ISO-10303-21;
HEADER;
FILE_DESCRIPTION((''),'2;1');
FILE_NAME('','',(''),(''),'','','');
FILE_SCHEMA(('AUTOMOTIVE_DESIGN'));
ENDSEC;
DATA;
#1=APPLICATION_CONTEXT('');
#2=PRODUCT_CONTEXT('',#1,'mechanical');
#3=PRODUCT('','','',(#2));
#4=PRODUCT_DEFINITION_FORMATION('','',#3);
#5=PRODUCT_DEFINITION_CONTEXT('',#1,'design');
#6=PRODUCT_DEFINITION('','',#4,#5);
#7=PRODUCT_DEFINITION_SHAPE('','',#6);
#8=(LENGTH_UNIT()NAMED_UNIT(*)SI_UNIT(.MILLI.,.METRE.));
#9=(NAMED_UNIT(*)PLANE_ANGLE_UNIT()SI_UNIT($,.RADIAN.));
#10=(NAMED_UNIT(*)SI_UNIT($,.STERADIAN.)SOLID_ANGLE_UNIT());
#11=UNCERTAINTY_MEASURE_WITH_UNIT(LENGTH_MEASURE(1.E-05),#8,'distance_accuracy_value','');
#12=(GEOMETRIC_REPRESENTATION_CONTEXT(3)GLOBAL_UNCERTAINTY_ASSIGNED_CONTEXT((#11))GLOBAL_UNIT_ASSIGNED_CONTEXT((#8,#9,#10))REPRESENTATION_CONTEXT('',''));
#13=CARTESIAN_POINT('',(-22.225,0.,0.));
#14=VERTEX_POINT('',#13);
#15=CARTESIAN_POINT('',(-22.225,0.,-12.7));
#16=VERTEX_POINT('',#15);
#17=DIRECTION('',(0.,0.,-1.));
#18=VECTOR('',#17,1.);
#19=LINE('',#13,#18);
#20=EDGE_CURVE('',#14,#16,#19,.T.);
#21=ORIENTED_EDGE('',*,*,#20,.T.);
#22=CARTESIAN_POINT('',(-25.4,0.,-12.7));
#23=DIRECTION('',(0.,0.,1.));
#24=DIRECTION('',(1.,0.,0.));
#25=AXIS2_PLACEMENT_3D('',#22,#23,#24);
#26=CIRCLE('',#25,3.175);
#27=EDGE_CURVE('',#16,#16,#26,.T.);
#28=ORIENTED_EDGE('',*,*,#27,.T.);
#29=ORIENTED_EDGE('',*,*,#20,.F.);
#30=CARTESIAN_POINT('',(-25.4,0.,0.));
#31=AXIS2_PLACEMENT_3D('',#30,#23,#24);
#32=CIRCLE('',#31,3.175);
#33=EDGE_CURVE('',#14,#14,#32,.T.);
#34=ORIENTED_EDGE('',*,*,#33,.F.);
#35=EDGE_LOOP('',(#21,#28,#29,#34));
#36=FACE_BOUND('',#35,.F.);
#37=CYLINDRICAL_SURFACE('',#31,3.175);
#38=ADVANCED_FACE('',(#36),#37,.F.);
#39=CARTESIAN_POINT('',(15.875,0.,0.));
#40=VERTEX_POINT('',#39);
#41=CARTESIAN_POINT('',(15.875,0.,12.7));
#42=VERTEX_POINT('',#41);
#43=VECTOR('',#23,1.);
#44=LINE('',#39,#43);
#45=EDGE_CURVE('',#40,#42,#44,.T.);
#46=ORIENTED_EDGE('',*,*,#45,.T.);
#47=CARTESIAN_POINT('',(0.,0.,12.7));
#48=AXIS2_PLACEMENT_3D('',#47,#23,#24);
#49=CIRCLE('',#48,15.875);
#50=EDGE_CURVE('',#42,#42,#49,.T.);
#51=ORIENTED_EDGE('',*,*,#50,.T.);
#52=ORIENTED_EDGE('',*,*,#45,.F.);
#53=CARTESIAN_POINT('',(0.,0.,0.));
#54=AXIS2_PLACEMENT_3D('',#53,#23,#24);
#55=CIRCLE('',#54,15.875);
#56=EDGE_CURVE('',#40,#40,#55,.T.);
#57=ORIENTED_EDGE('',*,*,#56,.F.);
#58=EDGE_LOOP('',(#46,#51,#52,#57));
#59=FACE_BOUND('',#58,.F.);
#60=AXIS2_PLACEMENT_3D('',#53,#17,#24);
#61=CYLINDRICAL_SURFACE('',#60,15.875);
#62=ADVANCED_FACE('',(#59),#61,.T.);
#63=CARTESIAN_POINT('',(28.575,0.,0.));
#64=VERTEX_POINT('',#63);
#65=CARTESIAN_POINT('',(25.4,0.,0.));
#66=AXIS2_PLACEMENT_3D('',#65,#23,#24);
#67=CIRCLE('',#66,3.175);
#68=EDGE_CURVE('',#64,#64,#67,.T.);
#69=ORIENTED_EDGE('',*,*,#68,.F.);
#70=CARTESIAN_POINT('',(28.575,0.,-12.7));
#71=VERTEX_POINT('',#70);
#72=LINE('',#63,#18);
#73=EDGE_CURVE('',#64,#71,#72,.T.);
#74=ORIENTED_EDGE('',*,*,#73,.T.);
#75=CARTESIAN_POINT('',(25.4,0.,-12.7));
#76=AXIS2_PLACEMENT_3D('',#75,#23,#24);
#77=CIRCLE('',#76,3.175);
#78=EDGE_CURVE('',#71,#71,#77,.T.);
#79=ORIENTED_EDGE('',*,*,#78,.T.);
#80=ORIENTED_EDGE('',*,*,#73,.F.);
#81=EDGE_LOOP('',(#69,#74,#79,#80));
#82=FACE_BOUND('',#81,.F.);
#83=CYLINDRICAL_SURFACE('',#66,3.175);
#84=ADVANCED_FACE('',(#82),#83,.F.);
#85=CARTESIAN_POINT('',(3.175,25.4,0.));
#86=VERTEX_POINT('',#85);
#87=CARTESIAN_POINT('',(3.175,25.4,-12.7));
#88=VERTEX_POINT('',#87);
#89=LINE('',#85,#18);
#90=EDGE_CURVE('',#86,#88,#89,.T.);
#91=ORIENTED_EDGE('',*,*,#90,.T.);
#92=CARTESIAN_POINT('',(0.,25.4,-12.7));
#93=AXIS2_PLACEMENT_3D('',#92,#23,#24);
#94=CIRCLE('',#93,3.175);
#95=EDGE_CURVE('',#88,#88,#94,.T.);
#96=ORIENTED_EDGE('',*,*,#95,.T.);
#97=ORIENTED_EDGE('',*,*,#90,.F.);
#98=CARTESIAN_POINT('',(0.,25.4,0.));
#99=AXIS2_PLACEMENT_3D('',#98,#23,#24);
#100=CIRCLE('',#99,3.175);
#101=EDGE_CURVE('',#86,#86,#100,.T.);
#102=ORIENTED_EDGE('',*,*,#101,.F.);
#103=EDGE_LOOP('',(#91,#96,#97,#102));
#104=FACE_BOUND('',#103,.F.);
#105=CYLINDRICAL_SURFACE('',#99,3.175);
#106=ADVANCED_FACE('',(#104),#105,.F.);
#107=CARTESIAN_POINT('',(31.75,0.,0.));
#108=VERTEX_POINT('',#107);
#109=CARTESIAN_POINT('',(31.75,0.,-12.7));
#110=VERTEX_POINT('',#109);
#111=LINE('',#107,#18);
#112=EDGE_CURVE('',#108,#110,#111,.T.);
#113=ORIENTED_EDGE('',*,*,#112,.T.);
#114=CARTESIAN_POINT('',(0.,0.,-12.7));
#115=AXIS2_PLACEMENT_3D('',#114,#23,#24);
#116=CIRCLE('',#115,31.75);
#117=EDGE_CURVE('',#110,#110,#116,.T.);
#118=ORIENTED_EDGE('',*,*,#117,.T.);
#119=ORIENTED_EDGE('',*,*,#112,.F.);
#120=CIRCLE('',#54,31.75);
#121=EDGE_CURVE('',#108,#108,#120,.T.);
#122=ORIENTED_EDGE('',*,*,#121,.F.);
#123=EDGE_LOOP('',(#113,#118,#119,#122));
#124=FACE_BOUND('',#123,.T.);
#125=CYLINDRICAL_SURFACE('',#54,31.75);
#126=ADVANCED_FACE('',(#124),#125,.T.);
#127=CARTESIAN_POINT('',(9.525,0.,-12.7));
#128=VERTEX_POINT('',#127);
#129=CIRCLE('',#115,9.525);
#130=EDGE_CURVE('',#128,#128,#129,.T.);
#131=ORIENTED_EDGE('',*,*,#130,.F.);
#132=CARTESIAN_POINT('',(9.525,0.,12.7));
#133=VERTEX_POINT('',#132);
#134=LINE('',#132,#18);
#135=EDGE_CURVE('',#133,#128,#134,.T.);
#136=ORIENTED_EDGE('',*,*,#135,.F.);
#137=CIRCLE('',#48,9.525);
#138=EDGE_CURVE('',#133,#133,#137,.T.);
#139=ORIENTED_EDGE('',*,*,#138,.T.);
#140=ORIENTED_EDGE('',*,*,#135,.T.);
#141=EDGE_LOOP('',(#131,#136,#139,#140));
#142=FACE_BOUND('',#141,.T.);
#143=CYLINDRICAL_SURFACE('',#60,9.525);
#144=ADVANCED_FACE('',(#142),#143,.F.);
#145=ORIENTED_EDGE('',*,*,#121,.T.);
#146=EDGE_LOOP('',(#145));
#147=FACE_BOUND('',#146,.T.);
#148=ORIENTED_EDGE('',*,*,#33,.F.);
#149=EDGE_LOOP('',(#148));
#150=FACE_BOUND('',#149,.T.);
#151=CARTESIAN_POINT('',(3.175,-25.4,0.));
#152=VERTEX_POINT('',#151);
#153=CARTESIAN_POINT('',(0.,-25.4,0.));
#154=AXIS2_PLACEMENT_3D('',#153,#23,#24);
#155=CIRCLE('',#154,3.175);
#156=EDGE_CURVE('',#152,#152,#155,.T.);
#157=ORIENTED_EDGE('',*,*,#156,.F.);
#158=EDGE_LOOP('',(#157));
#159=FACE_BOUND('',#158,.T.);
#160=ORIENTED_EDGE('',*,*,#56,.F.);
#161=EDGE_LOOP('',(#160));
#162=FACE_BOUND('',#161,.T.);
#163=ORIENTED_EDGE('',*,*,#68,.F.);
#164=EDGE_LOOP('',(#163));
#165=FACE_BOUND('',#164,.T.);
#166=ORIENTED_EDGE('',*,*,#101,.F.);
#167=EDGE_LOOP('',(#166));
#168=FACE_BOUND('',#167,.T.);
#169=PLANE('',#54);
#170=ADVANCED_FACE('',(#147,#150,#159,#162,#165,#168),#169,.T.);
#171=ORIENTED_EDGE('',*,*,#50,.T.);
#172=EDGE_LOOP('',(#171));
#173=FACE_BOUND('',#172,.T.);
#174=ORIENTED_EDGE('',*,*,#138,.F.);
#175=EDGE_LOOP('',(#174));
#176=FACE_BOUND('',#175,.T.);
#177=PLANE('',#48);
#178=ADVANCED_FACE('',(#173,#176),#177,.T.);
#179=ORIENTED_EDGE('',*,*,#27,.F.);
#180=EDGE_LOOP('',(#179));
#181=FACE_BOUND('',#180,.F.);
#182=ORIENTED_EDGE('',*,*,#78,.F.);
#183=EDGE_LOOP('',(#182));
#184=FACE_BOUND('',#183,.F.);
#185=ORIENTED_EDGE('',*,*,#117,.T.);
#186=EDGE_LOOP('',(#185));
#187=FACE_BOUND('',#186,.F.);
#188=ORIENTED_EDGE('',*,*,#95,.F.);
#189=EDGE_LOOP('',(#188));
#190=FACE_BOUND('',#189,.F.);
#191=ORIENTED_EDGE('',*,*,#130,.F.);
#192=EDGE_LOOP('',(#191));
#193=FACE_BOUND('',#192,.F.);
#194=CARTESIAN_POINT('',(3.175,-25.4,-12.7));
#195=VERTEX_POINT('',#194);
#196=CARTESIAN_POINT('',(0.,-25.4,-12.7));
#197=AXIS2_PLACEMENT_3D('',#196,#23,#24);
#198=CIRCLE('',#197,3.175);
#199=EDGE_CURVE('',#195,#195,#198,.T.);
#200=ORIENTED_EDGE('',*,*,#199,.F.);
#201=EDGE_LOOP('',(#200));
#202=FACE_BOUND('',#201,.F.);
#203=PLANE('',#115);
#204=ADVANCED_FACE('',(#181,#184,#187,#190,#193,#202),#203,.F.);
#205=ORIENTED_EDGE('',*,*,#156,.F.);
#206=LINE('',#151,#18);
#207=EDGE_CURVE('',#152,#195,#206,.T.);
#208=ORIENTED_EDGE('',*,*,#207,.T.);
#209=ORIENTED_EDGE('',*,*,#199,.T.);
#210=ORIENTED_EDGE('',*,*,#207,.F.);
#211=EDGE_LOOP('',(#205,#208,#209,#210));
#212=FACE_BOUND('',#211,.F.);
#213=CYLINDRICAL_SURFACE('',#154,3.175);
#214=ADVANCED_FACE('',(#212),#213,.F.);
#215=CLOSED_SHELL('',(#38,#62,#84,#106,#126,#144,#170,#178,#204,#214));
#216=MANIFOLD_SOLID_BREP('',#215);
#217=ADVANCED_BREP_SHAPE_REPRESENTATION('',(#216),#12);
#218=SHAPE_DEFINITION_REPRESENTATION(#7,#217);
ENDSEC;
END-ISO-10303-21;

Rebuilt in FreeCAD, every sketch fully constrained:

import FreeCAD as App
import Part
import Sketcher

V = App.Vector
Q = App.Units.Quantity

doc = App.newDocument("Part")
body = doc.addObject("PartDesign::Body", "Body")

# Sketch on XY plane
sketch1 = doc.addObject("Sketcher::SketchObject", "Sketch")
body.addObject(sketch1)
sketch1.AttachmentSupport = (doc.XY_Plane, [""])
sketch1.MapMode = "FlatFace"
sketch1.addGeometry(Part.Circle(V(0, 0, 0), V(0, 0, 1), 31.8), False)
sketch1.addGeometry(Part.Circle(V(0, -25.4, 0), V(0, 0, 1), 3.2), False)
sketch1.addGeometry(Part.Circle(V(0, 0, 0), V(0, 0, 1), 9.5), False)
sketch1.addGeometry(Part.Circle(V(-25.4, 0, 0), V(0, 0, 1), 3.2), False)
sketch1.addGeometry(Part.Circle(V(25.4, 0, 0), V(0, 0, 1), 3.2), False)
sketch1.addGeometry(Part.Circle(V(0, 25.4, 0), V(0, 0, 1), 3.2), False)
sketch1.addConstraint(Sketcher.Constraint("Coincident", 0, 3, -1, 1))
sketch1.addConstraint(Sketcher.Constraint("Coincident", 2, 3, -1, 1))
sketch1.addConstraint(Sketcher.Constraint("Equal", 1, 3))
sketch1.addConstraint(Sketcher.Constraint("Equal", 3, 4))
sketch1.addConstraint(Sketcher.Constraint("Equal", 4, 5))
sketch1.addConstraint(Sketcher.Constraint("Symmetric", 3, 3, 4, 3, -1, 1))
sketch1.addConstraint(Sketcher.Constraint("Symmetric", 1, 3, 5, 3, -1, 1))
sketch1.addConstraint(Sketcher.Constraint("PointOnObject", 1, 3, -2))
sketch1.addConstraint(Sketcher.Constraint("PointOnObject", 3, 3, -1))
sketch1.addConstraint(Sketcher.Constraint("Diameter", 0, Q("2.5 in")))
sketch1.addConstraint(Sketcher.Constraint("Diameter", 1, Q("0.25 in")))
sketch1.addConstraint(Sketcher.Constraint("Diameter", 2, Q("0.75 in")))
sketch1.addConstraint(Sketcher.Constraint("DistanceY", 1, 3, -1, 1, Q("1 in")))
sketch1.addConstraint(Sketcher.Constraint("DistanceX", 3, 3, -1, 1, Q("1 in")))
pad1 = doc.addObject("PartDesign::Pad", "Pad")
body.addObject(pad1)
pad1.Profile = sketch1
pad1.Length = Q("0.5 in")
pad1.Reversed = True

# Sketch on XY plane
sketch2 = doc.addObject("Sketcher::SketchObject", "Sketch001")
body.addObject(sketch2)
sketch2.AttachmentSupport = (doc.XY_Plane, [""])
sketch2.MapMode = "FlatFace"
sketch2.addGeometry(Part.Circle(V(0, 0, 0), V(0, 0, 1), 16), False)
sketch2.addGeometry(Part.Circle(V(0, 0, 0), V(0, 0, 1), 10), False)
sketch2.addConstraint(Sketcher.Constraint("Coincident", 0, 3, -1, 1))
sketch2.addConstraint(Sketcher.Constraint("Coincident", 1, 3, -1, 1))
sketch2.addConstraint(Sketcher.Constraint("Diameter", 0, Q("1.25 in")))
sketch2.addConstraint(Sketcher.Constraint("Diameter", 1, Q("0.75 in")))
pad2 = doc.addObject("PartDesign::Pad", "Pad001")
body.addObject(pad2)
pad2.Profile = sketch2
pad2.Length = Q("0.5 in")

doc.recompute()
